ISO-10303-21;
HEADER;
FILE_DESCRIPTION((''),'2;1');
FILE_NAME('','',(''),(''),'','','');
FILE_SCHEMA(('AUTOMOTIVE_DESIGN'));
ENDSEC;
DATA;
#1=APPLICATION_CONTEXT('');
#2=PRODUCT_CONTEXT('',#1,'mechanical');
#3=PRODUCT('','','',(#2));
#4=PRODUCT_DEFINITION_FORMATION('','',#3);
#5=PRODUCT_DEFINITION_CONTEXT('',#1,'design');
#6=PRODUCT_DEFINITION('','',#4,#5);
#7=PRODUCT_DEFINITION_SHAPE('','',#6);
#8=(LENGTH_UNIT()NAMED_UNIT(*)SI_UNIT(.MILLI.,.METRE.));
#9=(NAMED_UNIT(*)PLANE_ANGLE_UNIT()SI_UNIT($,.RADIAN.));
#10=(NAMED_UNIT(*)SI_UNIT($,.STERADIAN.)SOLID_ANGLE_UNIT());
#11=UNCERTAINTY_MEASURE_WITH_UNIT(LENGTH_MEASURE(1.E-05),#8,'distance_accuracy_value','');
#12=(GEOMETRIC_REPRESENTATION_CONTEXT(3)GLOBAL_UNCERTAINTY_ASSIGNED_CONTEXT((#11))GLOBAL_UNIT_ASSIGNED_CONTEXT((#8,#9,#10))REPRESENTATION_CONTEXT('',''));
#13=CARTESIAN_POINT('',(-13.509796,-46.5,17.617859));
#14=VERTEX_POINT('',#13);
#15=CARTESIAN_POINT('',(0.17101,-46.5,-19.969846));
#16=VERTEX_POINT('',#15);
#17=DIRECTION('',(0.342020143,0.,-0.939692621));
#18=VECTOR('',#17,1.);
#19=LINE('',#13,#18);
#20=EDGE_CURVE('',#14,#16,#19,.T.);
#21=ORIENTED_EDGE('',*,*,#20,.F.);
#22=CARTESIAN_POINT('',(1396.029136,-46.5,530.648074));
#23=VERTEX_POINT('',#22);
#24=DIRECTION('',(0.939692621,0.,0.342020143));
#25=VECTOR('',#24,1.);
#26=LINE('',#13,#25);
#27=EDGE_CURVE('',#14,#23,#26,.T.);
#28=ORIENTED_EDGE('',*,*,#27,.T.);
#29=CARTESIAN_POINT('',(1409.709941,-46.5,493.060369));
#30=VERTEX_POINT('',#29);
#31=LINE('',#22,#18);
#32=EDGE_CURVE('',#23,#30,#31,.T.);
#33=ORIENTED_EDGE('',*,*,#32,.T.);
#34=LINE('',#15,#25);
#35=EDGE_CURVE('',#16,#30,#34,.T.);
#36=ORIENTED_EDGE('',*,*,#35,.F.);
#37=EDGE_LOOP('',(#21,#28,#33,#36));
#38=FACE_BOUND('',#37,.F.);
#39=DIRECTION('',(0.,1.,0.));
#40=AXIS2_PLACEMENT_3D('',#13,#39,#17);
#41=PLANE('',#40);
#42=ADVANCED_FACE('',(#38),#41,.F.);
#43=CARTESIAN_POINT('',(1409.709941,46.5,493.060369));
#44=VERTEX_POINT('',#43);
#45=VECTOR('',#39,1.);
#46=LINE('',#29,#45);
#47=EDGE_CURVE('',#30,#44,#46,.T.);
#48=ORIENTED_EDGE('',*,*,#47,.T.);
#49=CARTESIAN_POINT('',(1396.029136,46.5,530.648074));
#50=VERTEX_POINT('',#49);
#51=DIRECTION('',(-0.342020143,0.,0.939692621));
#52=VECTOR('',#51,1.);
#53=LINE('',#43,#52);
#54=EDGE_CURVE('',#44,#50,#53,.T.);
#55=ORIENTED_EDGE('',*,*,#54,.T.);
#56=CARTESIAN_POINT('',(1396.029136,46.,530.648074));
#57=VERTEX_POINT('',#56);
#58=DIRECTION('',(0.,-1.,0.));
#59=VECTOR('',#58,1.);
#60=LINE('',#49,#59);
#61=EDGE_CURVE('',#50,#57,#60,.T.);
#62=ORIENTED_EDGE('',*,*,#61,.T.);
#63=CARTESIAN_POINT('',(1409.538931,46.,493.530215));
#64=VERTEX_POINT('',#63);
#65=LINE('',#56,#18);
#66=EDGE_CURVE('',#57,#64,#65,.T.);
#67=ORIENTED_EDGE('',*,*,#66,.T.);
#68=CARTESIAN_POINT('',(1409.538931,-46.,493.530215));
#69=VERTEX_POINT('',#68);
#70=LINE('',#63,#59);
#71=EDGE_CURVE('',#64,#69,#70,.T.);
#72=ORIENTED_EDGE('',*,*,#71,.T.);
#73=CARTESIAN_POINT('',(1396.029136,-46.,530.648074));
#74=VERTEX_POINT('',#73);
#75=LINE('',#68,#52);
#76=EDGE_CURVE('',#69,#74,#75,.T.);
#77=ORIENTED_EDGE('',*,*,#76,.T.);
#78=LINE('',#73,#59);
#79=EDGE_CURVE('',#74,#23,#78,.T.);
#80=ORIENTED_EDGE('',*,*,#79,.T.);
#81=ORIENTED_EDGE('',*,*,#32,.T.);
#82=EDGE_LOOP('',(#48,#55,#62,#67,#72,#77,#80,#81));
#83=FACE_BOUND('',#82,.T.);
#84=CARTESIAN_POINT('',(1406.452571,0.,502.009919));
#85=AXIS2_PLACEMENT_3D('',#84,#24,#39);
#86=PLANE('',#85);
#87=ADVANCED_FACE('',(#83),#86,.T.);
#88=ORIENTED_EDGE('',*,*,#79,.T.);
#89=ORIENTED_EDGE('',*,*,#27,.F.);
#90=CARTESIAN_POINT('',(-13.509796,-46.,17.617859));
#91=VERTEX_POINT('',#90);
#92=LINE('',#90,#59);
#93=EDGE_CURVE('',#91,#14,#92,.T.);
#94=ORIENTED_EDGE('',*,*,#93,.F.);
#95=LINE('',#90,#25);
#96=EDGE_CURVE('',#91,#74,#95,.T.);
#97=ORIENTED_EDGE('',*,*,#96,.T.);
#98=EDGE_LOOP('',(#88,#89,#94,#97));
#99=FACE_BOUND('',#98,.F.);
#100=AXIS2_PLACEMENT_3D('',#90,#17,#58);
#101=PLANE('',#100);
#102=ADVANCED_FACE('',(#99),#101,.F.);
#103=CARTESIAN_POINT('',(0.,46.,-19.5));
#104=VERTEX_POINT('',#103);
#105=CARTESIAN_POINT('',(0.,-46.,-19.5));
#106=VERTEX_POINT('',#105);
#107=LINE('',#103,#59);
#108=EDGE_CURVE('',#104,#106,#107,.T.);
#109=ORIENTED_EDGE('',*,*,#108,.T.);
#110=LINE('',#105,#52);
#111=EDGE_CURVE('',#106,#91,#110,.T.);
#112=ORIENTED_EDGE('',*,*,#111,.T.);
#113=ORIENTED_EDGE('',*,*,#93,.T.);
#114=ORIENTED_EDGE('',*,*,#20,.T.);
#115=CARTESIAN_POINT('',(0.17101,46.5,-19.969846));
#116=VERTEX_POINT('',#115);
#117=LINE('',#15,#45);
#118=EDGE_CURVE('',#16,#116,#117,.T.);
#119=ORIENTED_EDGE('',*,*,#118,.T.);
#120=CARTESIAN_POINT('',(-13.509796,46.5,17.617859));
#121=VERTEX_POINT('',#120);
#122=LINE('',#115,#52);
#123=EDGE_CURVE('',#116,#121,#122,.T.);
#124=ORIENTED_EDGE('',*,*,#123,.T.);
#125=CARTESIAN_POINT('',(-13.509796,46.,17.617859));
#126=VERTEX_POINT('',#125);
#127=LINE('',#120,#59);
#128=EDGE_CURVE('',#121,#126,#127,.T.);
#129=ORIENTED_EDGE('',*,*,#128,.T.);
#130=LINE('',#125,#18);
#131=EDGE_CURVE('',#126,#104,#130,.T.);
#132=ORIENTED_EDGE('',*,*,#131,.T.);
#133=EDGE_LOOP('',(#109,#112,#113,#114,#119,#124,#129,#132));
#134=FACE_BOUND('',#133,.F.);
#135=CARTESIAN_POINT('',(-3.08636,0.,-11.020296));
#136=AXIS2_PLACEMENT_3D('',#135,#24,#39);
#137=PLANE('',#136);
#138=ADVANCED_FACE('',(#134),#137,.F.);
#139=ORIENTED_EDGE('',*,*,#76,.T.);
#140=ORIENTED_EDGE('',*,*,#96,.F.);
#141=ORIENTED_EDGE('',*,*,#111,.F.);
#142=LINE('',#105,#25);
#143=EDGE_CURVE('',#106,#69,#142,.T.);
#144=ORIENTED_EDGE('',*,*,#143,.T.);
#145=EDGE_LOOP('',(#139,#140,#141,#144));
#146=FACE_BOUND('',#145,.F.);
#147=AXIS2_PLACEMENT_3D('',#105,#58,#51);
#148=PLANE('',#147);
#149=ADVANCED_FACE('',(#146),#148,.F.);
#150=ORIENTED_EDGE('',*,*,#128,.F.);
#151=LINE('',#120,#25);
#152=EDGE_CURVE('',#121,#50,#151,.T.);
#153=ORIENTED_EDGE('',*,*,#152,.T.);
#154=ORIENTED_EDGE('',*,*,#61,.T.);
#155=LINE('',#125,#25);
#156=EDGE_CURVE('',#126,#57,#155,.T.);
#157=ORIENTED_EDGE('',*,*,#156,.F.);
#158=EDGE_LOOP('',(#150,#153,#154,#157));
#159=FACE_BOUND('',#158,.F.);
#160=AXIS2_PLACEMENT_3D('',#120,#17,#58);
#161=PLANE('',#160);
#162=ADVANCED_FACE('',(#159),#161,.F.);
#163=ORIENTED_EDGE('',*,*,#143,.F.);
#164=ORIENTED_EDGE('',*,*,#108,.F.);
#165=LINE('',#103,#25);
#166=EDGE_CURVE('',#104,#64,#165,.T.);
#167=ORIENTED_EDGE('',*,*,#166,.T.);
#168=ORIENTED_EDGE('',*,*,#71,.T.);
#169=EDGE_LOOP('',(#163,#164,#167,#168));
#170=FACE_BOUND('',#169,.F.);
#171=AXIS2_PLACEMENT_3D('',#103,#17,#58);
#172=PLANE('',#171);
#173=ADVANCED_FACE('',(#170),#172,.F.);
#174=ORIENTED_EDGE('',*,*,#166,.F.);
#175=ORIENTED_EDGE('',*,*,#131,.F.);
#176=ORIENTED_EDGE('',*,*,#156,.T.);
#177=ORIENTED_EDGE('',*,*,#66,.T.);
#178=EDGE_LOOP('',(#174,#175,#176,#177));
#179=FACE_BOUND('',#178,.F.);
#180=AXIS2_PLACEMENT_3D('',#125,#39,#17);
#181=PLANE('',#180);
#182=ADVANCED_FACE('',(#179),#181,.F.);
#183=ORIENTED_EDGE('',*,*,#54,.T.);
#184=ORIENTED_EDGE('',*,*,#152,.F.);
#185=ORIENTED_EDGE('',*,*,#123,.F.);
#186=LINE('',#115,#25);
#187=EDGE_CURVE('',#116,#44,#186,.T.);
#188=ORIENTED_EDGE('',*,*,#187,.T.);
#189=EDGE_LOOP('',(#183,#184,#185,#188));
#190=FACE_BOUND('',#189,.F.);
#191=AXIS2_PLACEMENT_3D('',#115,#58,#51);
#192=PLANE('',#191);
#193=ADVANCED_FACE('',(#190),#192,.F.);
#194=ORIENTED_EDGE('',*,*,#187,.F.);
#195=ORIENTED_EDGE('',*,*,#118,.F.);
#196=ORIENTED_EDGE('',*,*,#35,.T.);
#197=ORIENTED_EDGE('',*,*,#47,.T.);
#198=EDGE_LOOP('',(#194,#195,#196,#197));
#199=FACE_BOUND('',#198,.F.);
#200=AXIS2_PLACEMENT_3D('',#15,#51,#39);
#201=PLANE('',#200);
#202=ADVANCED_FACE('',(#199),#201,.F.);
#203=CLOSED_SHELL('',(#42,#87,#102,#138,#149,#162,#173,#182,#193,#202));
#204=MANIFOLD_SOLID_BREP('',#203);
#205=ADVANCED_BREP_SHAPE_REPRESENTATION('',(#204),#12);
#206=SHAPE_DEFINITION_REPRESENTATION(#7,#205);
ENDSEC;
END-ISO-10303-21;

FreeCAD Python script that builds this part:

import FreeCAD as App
import Part
import Sketcher
Q = App.Units.Quantity


def add_polygon(sketch, points):
    """Adds a closed chain of lines whose ends are joined by coincident constraints."""
    first, n = sketch.GeometryCount, len(points)
    for a, b in zip(points, points[1:] + points[:1]):
        sketch.addGeometry(Part.LineSegment(App.Vector(*a, 0), App.Vector(*b, 0)), False)
    for i in range(n):
        sketch.addConstraint(Sketcher.Constraint("Coincident", first + i, 2, first + (i + 1) % n, 1))

doc = App.newDocument("Part")
body = doc.addObject("PartDesign::Body", "Body")

sketch1 = doc.addObject("Sketcher::SketchObject", "Sketch")
body.addObject(sketch1)
sketch1.AttachmentSupport = (doc.YZ_Plane, [""])
sketch1.MapMode = "FlatFace"
add_polygon(sketch1, [(46.5, -20), (46.5, 20), (46, 20), (46, -19.5), (-46, -19.5), (-46, 20), (-46.5, 20), (-46.5, -20)])
sketch1.addConstraint(Sketcher.Constraint("Vertical", 0))
sketch1.addConstraint(Sketcher.Constraint("Horizontal", 1))
sketch1.addConstraint(Sketcher.Constraint("Vertical", 2))
sketch1.addConstraint(Sketcher.Constraint("Horizontal", 3))
sketch1.addConstraint(Sketcher.Constraint("Vertical", 4))
sketch1.addConstraint(Sketcher.Constraint("Horizontal", 5))
sketch1.addConstraint(Sketcher.Constraint("Vertical", 6))
sketch1.addConstraint(Sketcher.Constraint("Horizontal", 7))
sketch1.addConstraint(Sketcher.Constraint("Symmetric", 0, 2, 6, 2, -1, 1))
sketch1.addConstraint(Sketcher.Constraint("Symmetric", 1, 2, 4, 2, -2))
sketch1.addConstraint(Sketcher.Constraint("DistanceX", 3, 2, 3, 1, Q("92 mm")))
sketch1.addConstraint(Sketcher.Constraint("DistanceX", 7, 1, 7, 2, Q("93 mm")))
sketch1.addConstraint(Sketcher.Constraint("DistanceY", 0, 1, 0, 2, Q("40 mm")))
sketch1.addConstraint(Sketcher.Constraint("DistanceY", 2, 2, 2, 1, Q("39.5 mm")))
pad1 = doc.addObject("PartDesign::Pad", "Pad")
body.addObject(pad1)
pad1.Profile = sketch1
pad1.Length = 1500
body2 = doc.addObject("PartDesign::Body", "Body001")
doc.recompute()

body.Placement = App.Placement(App.Vector(-6.669393, 0, -1.175994), App.Rotation(App.Vector(0, -1, 0), 20))
boolean = doc.addObject("PartDesign::Boolean", "Boolean")
body2.addObject(boolean)
boolean.Type = "Fuse"
boolean.addObjects([body])

doc.recompute()
